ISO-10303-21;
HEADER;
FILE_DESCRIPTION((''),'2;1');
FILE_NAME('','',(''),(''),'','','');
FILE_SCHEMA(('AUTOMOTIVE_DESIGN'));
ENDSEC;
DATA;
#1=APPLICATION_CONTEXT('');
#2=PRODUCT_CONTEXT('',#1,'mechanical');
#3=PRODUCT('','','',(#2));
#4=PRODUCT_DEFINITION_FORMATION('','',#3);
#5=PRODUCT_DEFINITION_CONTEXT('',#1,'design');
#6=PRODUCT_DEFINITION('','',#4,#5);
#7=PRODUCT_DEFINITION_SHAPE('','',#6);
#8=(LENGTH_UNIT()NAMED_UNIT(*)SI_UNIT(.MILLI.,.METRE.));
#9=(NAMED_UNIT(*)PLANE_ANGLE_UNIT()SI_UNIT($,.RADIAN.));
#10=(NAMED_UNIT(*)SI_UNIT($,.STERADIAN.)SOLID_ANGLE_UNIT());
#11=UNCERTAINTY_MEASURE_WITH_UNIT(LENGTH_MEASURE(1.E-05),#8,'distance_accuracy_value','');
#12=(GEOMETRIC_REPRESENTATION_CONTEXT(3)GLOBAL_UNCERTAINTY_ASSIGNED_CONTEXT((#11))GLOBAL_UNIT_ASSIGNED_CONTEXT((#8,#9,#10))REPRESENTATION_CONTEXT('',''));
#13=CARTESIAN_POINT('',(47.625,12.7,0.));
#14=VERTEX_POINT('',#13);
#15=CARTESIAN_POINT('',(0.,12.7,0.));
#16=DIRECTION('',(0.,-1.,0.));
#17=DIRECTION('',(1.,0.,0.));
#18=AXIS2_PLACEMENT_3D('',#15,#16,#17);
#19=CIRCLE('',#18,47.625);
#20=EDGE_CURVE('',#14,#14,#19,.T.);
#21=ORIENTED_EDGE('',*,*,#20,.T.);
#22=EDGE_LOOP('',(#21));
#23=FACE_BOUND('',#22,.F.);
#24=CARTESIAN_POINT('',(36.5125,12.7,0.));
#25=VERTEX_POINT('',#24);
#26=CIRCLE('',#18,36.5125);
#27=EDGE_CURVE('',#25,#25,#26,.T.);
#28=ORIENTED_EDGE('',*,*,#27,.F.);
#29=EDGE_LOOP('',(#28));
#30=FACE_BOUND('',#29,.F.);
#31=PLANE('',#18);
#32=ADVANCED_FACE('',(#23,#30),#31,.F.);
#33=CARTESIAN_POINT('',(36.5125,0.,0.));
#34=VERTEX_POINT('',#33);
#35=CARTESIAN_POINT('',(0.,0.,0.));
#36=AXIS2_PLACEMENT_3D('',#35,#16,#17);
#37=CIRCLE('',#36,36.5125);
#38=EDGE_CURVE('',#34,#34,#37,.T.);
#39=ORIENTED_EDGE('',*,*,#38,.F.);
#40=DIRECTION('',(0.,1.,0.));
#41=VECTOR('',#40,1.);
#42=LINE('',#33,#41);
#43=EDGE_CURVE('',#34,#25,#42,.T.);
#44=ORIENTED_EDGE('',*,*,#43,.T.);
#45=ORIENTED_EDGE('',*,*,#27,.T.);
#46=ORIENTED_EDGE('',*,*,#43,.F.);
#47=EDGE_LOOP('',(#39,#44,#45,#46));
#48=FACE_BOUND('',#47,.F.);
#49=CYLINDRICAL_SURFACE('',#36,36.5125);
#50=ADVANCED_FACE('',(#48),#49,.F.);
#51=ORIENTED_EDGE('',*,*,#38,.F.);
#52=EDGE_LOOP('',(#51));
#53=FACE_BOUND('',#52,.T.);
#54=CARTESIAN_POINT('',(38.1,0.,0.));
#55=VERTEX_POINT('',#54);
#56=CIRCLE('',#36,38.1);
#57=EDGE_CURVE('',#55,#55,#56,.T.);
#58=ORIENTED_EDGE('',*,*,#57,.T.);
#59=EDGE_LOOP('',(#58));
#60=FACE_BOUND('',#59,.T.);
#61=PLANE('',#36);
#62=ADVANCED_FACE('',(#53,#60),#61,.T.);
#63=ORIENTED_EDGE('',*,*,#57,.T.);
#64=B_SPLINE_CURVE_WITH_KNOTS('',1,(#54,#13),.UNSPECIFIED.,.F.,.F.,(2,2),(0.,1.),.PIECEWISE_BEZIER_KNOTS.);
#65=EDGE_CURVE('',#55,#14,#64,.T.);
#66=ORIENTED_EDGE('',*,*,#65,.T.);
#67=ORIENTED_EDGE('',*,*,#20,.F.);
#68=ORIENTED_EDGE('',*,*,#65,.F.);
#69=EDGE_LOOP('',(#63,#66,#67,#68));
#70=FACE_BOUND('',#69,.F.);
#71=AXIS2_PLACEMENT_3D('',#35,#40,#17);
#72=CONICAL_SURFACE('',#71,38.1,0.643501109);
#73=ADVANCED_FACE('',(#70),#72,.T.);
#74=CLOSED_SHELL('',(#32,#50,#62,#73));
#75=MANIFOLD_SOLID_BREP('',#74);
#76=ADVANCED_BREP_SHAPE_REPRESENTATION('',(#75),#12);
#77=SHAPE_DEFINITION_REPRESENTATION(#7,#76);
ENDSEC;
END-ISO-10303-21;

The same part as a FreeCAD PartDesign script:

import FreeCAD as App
import Part
import Sketcher
from FreeCAD import Vector
Q = App.Units.Quantity

doc = App.newDocument("Part")
body = doc.addObject("PartDesign::Body", "Body")

# Sketch on XZ plane
sketch1 = body.newObject("Sketcher::SketchObject", "Sketch")
sketch1.AttachmentSupport = (doc.getObject("XZ_Plane"), [""])
sketch1.MapMode = "FlatFace"
sketch1.addGeometry(Part.Circle(Vector(0, 0, 0), Vector(0, 0, 1), 38), False)
sketch1.addConstraint(Sketcher.Constraint("Coincident", 0, 3, -1, 1))
sketch1.addConstraint(Sketcher.Constraint("Diameter", 0, Q("3 in")))

# Sketch on XZ plane
sketch2 = body.newObject("Sketcher::SketchObject", "Sketch001")
sketch2.AttachmentSupport = (doc.getObject("XZ_Plane"), [""])
sketch2.MapMode = "FlatFace"
sketch2.AttachmentOffset = App.Placement(Vector(0, 0, -0.5 * 25.4), App.Rotation())
sketch2.addGeometry(Part.Circle(Vector(0, 0, 0), Vector(0, 0, 1), 48), False)
sketch2.addConstraint(Sketcher.Constraint("Coincident", 0, 3, -1, 1))
sketch2.addConstraint(Sketcher.Constraint("Diameter", 0, Q("3.75 in")))

additiveloft = body.newObject("PartDesign::AdditiveLoft", "AdditiveLoft")
additiveloft.Profile = sketch1
additiveloft.Sections = [sketch2]

# Sketch on XZ plane
sketch3 = body.newObject("Sketcher::SketchObject", "Sketch002")
sketch3.AttachmentSupport = (doc.getObject("XZ_Plane"), [""])
sketch3.MapMode = "FlatFace"
sketch3.addGeometry(Part.Circle(Vector(0, 0, 0), Vector(0, 0, 1), 37), False)
sketch3.addConstraint(Sketcher.Constraint("Coincident", 0, 3, -1, 1))
sketch3.addConstraint(Sketcher.Constraint("Diameter", 0, Q("2.875 in")))
pocket1 = body.newObject("PartDesign::Pocket", "Pocket")
pocket1.Profile = sketch3
pocket1.Length = Q("1 in")

doc.recompute()
